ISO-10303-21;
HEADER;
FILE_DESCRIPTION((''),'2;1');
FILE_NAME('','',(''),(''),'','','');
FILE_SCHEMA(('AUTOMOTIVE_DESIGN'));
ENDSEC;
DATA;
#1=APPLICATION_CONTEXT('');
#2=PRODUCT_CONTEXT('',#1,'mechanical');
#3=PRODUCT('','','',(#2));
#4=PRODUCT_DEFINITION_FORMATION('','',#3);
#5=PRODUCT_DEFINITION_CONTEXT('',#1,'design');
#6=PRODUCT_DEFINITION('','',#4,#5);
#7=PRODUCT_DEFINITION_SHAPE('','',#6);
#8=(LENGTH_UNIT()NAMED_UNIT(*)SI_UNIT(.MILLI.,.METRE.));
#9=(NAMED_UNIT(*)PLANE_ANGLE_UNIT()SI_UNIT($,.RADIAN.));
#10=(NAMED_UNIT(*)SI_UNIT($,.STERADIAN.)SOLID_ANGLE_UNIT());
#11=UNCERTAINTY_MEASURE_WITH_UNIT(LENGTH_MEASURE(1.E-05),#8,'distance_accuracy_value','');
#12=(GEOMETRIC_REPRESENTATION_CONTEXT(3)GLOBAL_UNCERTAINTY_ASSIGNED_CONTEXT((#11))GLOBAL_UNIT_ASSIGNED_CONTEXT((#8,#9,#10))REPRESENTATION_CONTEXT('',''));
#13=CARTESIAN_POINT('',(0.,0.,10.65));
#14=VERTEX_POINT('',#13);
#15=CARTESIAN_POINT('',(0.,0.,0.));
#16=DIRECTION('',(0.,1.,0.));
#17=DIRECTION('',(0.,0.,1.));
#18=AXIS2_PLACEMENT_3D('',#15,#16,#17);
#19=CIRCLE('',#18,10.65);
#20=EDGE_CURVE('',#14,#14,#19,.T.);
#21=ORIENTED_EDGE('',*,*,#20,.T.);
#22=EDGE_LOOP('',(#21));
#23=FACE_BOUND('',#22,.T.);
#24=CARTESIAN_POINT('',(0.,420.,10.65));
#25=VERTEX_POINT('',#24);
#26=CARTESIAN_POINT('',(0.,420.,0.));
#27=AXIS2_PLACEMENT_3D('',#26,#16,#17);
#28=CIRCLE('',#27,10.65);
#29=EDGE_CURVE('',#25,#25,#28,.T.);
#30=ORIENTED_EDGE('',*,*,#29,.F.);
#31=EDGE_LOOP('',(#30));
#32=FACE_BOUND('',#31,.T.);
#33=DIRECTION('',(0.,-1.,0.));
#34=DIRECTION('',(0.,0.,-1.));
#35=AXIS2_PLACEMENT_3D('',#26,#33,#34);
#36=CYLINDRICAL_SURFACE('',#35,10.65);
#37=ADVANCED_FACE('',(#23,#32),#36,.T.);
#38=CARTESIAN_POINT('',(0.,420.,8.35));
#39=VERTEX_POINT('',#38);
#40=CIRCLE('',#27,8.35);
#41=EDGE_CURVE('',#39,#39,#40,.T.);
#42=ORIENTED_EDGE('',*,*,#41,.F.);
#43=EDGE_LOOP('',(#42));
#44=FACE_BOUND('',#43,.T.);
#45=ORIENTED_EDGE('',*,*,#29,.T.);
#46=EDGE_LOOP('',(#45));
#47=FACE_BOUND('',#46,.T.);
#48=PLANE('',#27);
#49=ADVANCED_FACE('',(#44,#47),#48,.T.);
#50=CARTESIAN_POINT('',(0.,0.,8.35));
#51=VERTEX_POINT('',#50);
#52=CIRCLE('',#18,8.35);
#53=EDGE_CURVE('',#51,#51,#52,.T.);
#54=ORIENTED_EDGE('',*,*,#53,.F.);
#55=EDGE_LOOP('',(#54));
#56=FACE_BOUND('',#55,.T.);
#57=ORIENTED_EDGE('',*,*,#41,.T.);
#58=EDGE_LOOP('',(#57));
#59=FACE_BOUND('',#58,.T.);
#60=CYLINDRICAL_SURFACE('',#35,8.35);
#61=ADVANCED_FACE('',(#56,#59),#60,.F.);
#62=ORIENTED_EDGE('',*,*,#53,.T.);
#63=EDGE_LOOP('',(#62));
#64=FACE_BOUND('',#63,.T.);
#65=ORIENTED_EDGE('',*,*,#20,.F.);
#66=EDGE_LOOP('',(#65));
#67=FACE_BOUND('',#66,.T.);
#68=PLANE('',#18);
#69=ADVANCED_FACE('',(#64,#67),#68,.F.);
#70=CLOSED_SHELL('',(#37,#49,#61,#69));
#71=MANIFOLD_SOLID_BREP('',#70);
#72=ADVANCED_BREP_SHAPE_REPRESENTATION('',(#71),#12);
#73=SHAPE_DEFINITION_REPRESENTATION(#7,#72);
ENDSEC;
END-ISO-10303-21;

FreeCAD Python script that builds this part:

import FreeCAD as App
import Part
import Sketcher

doc = App.newDocument("Part")
params = doc.addObject("Spreadsheet::Sheet", "Params")
for row, (alias, value) in enumerate([
    ("sketch1_diameter", "21.3 mm"),
    ("sketch1_diameter2", "16.7 mm"),
    ("pad1_length", "420 mm"),
], start=1):
    params.set(f"A{row}", alias)
    params.set(f"B{row}", "=" + value)
    params.setAlias(f"B{row}", alias)

body = doc.addObject("PartDesign::Body", "Body")

# Sketch on XZ plane
sketch1 = body.newObject("Sketcher::SketchObject", "Sketch")
sketch1.AttachmentSupport = (doc.getObject("XZ_Plane"), [""])
sketch1.MapMode = "FlatFace"
sketch1.addGeometry([
    Part.Circle(App.Vector(0, 0, 0), App.Vector(0, 0, 1), 10.65),
    Part.Circle(App.Vector(0, 0, 0), App.Vector(0, 0, 1), 8.35),
], False)
sketch1.addConstraint([
    Sketcher.Constraint("Coincident", 0, 3, -1, 1),
    Sketcher.Constraint("Coincident", 1, 3, -1, 1),
    Sketcher.Constraint("Diameter", 0, 21.3),
    Sketcher.Constraint("Diameter", 1, 16.7),
])
sketch1.setExpression("Constraints[2]", "Params.sketch1_diameter")
sketch1.setExpression("Constraints[3]", "Params.sketch1_diameter2")
pad1 = body.newObject("PartDesign::Pad", "Pad")
pad1.Profile = sketch1
pad1.setExpression("Length", "Params.pad1_length")
pad1.Reversed = True

doc.recompute()
